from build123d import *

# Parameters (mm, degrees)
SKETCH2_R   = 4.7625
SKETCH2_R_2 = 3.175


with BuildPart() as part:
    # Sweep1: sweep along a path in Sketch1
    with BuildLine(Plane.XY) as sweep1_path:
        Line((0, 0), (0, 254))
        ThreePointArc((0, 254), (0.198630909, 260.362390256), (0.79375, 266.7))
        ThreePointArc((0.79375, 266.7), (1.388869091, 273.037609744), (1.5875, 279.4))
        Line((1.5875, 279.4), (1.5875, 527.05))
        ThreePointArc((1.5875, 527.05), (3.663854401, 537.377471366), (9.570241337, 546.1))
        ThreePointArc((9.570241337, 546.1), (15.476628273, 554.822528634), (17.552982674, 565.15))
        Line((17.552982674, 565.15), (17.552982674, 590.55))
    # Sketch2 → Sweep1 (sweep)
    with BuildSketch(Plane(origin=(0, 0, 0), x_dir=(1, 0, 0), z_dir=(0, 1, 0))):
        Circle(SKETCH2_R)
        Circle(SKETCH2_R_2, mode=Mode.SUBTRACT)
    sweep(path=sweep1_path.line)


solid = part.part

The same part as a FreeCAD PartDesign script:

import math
import FreeCAD as App
import Part
import Sketcher
Q = App.Units.Quantity

doc = App.newDocument("Part")
body = doc.addObject("PartDesign::Body", "Body")

sketch1 = body.newObject("Sketcher::SketchObject", "Sketch")
sketch1.AttachmentSupport = (doc.getObject("XZ_Plane"), [""])
sketch1.MapMode = "FlatFace"
sketch1.addGeometry([
    Part.Circle(App.Vector(0, 0, 0), App.Vector(0, 0, 1), 4.8),
    Part.Circle(App.Vector(0, 0, 0), App.Vector(0, 0, 1), 3.2),
], False)
sketch1.addConstraint([
    Sketcher.Constraint("Coincident", 0, 3, -1, 1),
    Sketcher.Constraint("Coincident", 1, 3, -1, 1),
    Sketcher.Constraint("Diameter", 1, Q("0.25 in")),
    Sketcher.Constraint("Diameter", 0, Q("0.375 in")),
])

sketch2 = body.newObject("Sketcher::SketchObject", "Sketch001")
sketch2.AttachmentSupport = (doc.getObject("XY_Plane"), [""])
sketch2.MapMode = "FlatFace"
sketch2.addGeometry([
    Part.LineSegment(App.Vector(0, 0, 0), App.Vector(0, 254, 0)),
    Part.ArcOfCircle(Part.Circle(App.Vector(102, 254, 0), App.Vector(0, 0, 1), 102), math.radians(172.85), math.radians(180)),
    Part.ArcOfCircle(Part.Circle(App.Vector(-100, 279, 0), App.Vector(0, 0, 1), 102), math.radians(-7.15), math.radians(0)),
    Part.LineSegment(App.Vector(2, 279, 0), App.Vector(2, 527, 0)),
    Part.ArcOfCircle(Part.Circle(App.Vector(28, 527, 0), App.Vector(0, 0, 1), 27), math.radians(135), math.radians(180)),
    Part.ArcOfCircle(Part.Circle(App.Vector(-9, 565, 0), App.Vector(0, 0, 1), 27), math.radians(-45), math.radians(0)),
    Part.LineSegment(App.Vector(18, 565, 0), App.Vector(18, 591, 0)),
], False)
sketch2.addConstraint([
    Sketcher.Constraint("Tangent", 0, 2, 1, 2),
    Sketcher.Constraint("Tangent", 1, 1, 2, 1),
    Sketcher.Constraint("Tangent", 2, 2, 3, 1),
    Sketcher.Constraint("Tangent", 3, 2, 4, 2),
    Sketcher.Constraint("Tangent", 4, 1, 5, 1),
    Sketcher.Constraint("Tangent", 5, 2, 6, 1),
    Sketcher.Constraint("Vertical", 0),
    Sketcher.Constraint("Vertical", 3),
    Sketcher.Constraint("Vertical", 6),
    Sketcher.Constraint("Coincident", 0, 1, -1, 1),
    Sketcher.Constraint("Equal", 1, 2),
    Sketcher.Constraint("Equal", 4, 5),
    Sketcher.Constraint("DistanceY", 0, 1, 0, 2, Q("10 in")),
    Sketcher.Constraint("DistanceY", 6, 1, 6, 2, Q("1 in")),
    Sketcher.Constraint("DistanceY", -1, 1, 2, 3, Q("11 in")),
    Sketcher.Constraint("Radius", 1, Q("4.015625 in")),
    Sketcher.Constraint("DistanceY", 1, 1, 4, 1, Q("11 in")),
    Sketcher.Constraint("DistanceY", 3, 1, 3, 2, Q("9.75 in")),
    Sketcher.Constraint("Radius", 4, Q("26.721814 mm")),
])
doc.recompute()

additivepipe = body.newObject("PartDesign::AdditivePipe", "AdditivePipe")
additivepipe.Profile = sketch1
additivepipe.Spine = (sketch2, ["Edge1", "Edge2", "Edge3", "Edge4", "Edge5", "Edge6", "Edge7"])

doc.recompute()
